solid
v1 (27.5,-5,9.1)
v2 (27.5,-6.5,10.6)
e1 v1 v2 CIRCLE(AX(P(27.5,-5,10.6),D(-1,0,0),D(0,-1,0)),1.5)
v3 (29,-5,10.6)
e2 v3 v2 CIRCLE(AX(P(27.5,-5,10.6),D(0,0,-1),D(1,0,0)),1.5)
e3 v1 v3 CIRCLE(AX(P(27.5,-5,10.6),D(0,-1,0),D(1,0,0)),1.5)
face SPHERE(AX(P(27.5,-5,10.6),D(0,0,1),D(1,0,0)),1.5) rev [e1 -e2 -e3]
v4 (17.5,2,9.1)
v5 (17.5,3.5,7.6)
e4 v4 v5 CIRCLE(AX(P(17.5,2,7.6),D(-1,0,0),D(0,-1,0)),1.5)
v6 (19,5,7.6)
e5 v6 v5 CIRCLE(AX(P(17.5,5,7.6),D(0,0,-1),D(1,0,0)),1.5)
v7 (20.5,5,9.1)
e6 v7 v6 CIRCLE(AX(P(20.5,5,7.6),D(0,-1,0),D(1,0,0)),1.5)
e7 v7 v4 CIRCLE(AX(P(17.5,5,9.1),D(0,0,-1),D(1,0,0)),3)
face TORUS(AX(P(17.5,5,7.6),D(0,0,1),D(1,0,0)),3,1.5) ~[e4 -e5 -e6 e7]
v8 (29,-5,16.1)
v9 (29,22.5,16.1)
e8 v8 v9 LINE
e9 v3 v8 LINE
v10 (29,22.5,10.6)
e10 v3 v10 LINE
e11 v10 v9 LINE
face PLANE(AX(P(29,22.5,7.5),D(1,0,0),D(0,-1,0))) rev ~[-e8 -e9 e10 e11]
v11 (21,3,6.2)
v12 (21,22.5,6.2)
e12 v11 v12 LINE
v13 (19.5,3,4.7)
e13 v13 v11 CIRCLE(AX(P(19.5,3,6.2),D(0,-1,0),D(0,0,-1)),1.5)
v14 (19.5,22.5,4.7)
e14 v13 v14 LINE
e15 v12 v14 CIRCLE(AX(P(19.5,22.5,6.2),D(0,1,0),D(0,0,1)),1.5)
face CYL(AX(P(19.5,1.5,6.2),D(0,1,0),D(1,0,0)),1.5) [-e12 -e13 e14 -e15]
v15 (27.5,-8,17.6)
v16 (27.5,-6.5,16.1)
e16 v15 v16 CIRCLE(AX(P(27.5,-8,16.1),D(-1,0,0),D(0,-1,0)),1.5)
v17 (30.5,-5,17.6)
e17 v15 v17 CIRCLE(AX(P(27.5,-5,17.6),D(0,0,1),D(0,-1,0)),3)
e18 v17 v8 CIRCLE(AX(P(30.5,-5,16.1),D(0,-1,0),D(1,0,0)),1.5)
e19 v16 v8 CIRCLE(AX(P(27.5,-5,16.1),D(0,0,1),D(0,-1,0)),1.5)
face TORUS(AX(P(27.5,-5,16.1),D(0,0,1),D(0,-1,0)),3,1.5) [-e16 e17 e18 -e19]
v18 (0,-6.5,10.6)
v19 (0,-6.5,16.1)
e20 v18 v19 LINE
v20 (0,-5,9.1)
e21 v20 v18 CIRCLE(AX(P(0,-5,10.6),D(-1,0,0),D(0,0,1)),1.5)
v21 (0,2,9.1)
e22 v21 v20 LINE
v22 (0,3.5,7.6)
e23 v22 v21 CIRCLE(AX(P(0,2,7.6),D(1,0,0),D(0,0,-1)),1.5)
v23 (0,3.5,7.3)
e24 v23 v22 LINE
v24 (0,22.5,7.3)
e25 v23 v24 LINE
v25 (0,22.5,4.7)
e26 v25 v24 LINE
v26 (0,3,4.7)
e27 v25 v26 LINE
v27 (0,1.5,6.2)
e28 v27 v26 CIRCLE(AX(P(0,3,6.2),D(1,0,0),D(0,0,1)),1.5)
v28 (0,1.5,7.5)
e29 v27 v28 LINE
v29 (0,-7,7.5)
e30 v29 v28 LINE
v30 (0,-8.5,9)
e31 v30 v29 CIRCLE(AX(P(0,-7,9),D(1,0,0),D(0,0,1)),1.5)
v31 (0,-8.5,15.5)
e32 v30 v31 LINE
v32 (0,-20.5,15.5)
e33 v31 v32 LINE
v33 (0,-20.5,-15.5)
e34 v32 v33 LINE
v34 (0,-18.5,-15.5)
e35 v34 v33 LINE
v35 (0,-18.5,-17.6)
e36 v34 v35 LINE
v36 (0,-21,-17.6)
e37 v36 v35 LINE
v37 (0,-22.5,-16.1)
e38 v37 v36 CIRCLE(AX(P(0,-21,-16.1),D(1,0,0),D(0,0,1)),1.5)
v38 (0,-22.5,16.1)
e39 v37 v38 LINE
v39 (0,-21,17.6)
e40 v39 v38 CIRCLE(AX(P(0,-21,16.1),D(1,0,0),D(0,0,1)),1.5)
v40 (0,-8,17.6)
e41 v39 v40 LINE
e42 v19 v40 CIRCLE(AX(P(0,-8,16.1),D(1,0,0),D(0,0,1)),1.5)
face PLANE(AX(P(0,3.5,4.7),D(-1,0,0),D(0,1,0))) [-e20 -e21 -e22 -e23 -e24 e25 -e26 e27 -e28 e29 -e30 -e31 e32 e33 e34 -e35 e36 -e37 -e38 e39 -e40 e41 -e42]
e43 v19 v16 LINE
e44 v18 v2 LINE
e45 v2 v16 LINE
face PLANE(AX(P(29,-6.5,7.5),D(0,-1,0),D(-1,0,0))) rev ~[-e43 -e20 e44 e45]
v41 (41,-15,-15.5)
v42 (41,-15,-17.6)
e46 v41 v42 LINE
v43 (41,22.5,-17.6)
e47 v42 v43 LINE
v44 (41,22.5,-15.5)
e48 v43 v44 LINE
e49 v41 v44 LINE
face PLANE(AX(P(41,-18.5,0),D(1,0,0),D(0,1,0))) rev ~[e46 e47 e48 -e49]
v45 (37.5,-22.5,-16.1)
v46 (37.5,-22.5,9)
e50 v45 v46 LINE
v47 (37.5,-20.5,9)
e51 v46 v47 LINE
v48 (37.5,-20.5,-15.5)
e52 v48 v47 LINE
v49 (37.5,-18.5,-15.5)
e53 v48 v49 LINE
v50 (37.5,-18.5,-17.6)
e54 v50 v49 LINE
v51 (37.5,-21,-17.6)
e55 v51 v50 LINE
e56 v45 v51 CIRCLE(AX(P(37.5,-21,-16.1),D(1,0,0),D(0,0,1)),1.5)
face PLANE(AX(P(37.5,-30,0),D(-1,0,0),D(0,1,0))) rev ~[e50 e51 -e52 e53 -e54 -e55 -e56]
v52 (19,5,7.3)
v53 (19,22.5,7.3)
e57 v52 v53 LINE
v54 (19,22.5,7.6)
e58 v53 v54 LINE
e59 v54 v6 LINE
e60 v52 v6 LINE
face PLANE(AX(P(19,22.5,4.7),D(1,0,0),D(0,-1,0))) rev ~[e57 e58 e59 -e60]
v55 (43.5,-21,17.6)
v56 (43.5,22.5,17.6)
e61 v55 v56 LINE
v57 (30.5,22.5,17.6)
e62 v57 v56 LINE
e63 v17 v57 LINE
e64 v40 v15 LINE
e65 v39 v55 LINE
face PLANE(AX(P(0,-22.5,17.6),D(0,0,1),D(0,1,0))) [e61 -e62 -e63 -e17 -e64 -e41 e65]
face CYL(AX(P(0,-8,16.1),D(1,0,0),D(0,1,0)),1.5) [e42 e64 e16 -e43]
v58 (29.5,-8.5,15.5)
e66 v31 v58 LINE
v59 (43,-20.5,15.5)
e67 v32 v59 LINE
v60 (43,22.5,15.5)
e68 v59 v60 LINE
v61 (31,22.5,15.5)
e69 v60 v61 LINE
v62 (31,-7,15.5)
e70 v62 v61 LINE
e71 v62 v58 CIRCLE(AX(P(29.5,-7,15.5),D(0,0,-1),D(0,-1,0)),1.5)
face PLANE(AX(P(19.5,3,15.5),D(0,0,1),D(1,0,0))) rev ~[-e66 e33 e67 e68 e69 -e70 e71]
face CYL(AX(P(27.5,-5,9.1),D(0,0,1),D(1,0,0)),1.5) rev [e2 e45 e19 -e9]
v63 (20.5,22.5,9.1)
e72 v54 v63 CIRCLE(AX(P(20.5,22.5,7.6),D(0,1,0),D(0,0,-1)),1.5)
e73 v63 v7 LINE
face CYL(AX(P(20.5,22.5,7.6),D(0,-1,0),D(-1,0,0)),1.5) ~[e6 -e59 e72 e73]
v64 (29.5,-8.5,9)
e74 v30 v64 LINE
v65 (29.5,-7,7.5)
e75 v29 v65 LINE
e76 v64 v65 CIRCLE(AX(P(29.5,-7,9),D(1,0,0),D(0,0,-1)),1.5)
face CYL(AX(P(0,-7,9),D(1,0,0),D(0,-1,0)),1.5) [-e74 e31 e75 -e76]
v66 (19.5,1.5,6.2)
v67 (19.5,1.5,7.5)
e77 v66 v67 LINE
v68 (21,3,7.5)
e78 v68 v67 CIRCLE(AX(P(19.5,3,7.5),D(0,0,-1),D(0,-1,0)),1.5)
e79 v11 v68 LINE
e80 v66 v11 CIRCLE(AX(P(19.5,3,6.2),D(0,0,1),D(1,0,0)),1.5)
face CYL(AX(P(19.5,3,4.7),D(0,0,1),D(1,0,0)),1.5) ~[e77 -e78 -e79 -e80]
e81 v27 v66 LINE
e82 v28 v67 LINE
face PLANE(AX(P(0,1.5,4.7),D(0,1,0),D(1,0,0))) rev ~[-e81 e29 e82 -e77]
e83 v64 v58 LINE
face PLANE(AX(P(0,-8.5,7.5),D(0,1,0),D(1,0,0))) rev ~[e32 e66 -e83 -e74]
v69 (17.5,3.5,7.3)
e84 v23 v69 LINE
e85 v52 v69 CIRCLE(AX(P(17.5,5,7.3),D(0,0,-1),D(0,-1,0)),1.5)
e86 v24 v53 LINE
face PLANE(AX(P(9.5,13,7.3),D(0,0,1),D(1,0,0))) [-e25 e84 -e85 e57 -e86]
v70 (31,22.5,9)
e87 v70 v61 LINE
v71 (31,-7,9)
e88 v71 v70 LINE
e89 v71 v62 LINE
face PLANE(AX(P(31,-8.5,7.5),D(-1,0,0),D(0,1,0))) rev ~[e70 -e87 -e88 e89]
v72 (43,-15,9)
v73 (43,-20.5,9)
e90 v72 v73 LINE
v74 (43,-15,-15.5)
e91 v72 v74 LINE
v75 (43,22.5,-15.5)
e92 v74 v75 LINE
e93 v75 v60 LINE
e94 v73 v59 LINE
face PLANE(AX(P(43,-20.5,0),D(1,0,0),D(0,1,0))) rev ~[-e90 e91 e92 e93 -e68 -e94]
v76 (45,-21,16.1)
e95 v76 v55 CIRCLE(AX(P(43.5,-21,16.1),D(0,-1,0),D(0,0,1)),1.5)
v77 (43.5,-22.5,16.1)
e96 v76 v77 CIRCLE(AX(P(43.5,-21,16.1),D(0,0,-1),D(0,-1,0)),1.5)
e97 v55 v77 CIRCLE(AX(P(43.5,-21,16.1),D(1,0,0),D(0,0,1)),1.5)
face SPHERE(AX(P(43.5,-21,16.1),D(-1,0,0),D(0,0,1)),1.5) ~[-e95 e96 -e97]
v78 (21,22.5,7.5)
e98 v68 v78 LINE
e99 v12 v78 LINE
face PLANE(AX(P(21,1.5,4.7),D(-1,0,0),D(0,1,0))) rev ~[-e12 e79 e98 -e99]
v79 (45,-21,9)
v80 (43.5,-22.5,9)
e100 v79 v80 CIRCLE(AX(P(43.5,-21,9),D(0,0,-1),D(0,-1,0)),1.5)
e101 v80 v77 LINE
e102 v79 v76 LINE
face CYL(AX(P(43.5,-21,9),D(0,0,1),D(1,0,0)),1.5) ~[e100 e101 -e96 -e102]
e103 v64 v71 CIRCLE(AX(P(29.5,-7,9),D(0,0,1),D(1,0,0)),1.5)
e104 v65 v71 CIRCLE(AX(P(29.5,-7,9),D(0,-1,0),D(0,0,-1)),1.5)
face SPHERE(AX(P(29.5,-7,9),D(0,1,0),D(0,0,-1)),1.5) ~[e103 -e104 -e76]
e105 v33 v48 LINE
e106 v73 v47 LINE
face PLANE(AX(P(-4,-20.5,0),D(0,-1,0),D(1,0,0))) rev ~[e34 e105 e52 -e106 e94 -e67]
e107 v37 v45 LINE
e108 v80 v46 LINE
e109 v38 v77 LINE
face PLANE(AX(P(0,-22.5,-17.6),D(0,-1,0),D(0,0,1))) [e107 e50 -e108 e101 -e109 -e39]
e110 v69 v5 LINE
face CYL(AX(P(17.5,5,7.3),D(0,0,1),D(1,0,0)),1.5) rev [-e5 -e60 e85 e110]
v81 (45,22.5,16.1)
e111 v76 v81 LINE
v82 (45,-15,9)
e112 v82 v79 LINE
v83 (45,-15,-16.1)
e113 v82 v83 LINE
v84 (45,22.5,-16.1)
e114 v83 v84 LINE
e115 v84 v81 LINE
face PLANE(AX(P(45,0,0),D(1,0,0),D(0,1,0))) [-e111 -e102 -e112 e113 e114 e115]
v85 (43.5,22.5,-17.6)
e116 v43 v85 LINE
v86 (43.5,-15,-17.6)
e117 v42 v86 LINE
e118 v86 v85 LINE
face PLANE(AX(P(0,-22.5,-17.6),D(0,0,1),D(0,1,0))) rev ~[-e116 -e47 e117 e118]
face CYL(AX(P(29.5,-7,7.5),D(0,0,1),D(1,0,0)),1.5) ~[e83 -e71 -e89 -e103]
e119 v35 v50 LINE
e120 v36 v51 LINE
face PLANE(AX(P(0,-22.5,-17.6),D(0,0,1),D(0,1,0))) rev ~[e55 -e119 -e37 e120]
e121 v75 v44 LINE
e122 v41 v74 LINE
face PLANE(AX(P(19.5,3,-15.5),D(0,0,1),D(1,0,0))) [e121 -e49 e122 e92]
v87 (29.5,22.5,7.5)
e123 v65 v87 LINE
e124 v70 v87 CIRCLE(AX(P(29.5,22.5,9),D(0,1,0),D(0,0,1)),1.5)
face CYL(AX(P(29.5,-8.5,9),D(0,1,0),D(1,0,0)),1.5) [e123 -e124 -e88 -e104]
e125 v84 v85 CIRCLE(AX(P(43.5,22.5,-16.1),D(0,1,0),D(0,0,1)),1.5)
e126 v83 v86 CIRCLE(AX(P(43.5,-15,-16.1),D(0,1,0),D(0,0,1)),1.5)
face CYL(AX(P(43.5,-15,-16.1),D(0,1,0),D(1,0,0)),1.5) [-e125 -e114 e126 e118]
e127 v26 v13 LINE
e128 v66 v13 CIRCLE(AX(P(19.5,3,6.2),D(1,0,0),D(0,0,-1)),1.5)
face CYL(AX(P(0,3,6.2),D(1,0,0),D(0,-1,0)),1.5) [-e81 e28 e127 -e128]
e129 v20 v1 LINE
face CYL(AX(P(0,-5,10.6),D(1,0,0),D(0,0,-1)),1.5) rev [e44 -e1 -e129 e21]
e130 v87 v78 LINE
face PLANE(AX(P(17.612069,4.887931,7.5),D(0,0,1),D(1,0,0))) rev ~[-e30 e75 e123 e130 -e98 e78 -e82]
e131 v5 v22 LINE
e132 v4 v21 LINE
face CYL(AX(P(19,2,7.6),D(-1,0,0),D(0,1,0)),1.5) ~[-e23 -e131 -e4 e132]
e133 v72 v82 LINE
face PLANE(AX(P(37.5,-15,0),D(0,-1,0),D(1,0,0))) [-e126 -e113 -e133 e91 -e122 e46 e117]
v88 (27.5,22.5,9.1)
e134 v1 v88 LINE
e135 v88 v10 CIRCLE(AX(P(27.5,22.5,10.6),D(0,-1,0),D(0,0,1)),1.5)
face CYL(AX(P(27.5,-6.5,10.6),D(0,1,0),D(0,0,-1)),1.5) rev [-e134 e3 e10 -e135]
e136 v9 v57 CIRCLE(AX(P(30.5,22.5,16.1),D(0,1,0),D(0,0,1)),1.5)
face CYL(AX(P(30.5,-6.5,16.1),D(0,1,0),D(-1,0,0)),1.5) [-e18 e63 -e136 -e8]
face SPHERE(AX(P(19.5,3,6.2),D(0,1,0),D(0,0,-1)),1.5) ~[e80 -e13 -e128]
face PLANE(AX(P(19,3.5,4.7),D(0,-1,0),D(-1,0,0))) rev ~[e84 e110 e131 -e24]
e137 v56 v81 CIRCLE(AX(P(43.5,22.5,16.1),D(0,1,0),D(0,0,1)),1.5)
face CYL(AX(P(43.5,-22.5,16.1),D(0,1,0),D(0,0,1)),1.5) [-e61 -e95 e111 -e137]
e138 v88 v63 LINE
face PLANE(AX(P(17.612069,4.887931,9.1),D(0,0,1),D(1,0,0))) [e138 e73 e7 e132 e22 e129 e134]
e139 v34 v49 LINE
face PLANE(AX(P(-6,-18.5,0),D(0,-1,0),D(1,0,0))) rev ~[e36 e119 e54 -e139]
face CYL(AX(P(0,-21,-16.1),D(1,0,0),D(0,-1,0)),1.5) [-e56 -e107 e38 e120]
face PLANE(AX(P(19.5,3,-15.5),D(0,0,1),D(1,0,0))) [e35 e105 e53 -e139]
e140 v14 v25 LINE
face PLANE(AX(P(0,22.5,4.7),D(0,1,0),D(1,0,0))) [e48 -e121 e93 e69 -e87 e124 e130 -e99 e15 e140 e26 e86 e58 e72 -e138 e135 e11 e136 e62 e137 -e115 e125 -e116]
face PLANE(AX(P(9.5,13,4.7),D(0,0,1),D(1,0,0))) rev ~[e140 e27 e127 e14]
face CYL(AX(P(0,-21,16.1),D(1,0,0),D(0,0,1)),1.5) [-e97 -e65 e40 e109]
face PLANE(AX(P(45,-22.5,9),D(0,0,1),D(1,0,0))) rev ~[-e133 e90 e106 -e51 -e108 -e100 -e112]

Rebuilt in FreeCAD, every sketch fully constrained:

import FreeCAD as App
import Part
import Sketcher
from FreeCAD import Vector
Q = App.Units.Quantity


def edges_at(feature, points):
    """Names of the edges that pass closest to the given points."""
    edges = feature.Shape.Edges
    near = lambda p: min(range(len(edges)), key=lambda i: edges[i].distToShape(Part.Vertex(*p))[0])
    return sorted({f"Edge{near(p) + 1}" for p in points})


def add_polygon(sketch, points):
    """Adds a closed chain of lines whose ends are joined by coincident constraints."""
    first, n = sketch.GeometryCount, len(points)
    for a, b in zip(points, points[1:] + points[:1]):
        sketch.addGeometry(Part.LineSegment(App.Vector(*a, 0), App.Vector(*b, 0)), False)
    for i in range(n):
        sketch.addConstraint(Sketcher.Constraint("Coincident", first + i, 2, first + (i + 1) % n, 1))

doc = App.newDocument("Part")
body = doc.addObject("PartDesign::Body", "Body")

# Sketch on YZ plane
sketch1 = doc.addObject("Sketcher::SketchObject", "Sketch")
body.addObject(sketch1)
sketch1.AttachmentSupport = (doc.YZ_Plane, [""])
sketch1.MapMode = "FlatFace"
add_polygon(sketch1, [(-22, 18), (-22, -18), (22, -18), (22, 18)])  # lines 0-3
sketch1.addConstraint([
    Sketcher.Constraint("Vertical", 0),
    Sketcher.Constraint("Horizontal", 1),
    Sketcher.Constraint("Vertical", 2),
    Sketcher.Constraint("Horizontal", 3),
    Sketcher.Constraint("Symmetric", 0, 2, 2, 2, -1, 1),
    Sketcher.Constraint("DistanceX", 1, 1, 1, 2, Q("45 mm")),
    Sketcher.Constraint("DistanceY", 0, 2, 0, 1, Q("35.2 mm")),
])
pad1 = doc.addObject("PartDesign::Pad", "Pad")
body.addObject(pad1)
pad1.Profile = sketch1
pad1.Length = 45

# Sketch on XY plane
sketch2 = doc.addObject("Sketcher::SketchObject", "Sketch001")
body.addObject(sketch2)
sketch2.AttachmentSupport = (doc.XY_Plane, [""])
sketch2.MapMode = "FlatFace"
add_polygon(sketch2, [(0, 22), (0, -6), (29, -6), (29, 22)])  # lines 0-3
sketch2.addConstraint([
    Sketcher.Constraint("Vertical", 0),
    Sketcher.Constraint("Horizontal", 1),
    Sketcher.Constraint("Vertical", 2),
    Sketcher.Constraint("Horizontal", 3),
    Sketcher.Constraint("PointOnObject", 0, 2, -2),
    Sketcher.Constraint("Equal", 3, 0),
    Sketcher.Constraint("DistanceX", 1, 1, 1, 2, Q("29 mm")),
    Sketcher.Constraint("DistanceY", 0, 2, -1, 1, Q("6.5 mm")),
])
pocket1 = doc.addObject("PartDesign::Pocket", "Pocket")
body.addObject(pocket1)
pocket1.Profile = sketch2
pocket1.Length = 45
pocket1.Midplane = True

# Sketch on XY plane
sketch3 = doc.addObject("Sketcher::SketchObject", "Sketch002")
body.addObject(sketch3)
sketch3.AttachmentSupport = (doc.XY_Plane, [""])
sketch3.MapMode = "FlatFace"
add_polygon(sketch3, [(-4, 26), (-4, -20), (43, -20), (43, 26)])  # lines 0-3
sketch3.addConstraint([
    Sketcher.Constraint("Vertical", 0),
    Sketcher.Constraint("Horizontal", 1),
    Sketcher.Constraint("Vertical", 2),
    Sketcher.Constraint("Horizontal", 3),
    Sketcher.Constraint("Equal", 3, 0),
    Sketcher.Constraint("DistanceX", 1, 1, 1, 2, Q("47 mm")),
    Sketcher.Constraint("DistanceX", 0, 2, -1, 1, Q("4 mm")),
    Sketcher.Constraint("DistanceY", 0, 2, -1, 1, Q("20.5 mm")),
])
pocket2 = doc.addObject("PartDesign::Pocket", "Pocket001")
body.addObject(pocket2)
pocket2.Profile = sketch3
pocket2.Length = 31
pocket2.Midplane = True

# Sketch on XY plane
sketch4 = doc.addObject("Sketcher::SketchObject", "Sketch003")
body.addObject(sketch4)
sketch4.AttachmentSupport = (doc.XY_Plane, [""])
sketch4.MapMode = "FlatFace"
add_polygon(sketch4, [(-6, 28), (-6, -18), (41, -18), (41, 28)])  # lines 0-3
sketch4.addConstraint([
    Sketcher.Constraint("Vertical", 0),
    Sketcher.Constraint("Horizontal", 1),
    Sketcher.Constraint("Vertical", 2),
    Sketcher.Constraint("Horizontal", 3),
    Sketcher.Constraint("Equal", 3, 0),
    Sketcher.Constraint("DistanceX", 1, 1, 1, 2, Q("47 mm")),
    Sketcher.Constraint("DistanceX", 0, 2, -1, 1, Q("6 mm")),
    Sketcher.Constraint("DistanceY", 0, 2, -1, 1, Q("18.5 mm")),
])
pocket3 = doc.addObject("PartDesign::Pocket", "Pocket002")
body.addObject(pocket3)
pocket3.Profile = sketch4
pocket3.Length = 28

# Sketch on XY plane
sketch5 = doc.addObject("Sketcher::SketchObject", "Sketch004")
body.addObject(sketch5)
sketch5.AttachmentSupport = (doc.XY_Plane, [""])
sketch5.MapMode = "FlatFace"
add_polygon(sketch5, [(38, -15), (38, -30), (52, -30), (52, -15)])  # lines 0-3
sketch5.addConstraint([
    Sketcher.Constraint("Vertical", 0),
    Sketcher.Constraint("Horizontal", 1),
    Sketcher.Constraint("Vertical", 2),
    Sketcher.Constraint("Horizontal", 3),
    Sketcher.Constraint("Equal", 3, 0),
    Sketcher.Constraint("DistanceX", 1, 1, 1, 2, Q("15 mm")),
    Sketcher.Constraint("DistanceY", 0, 2, -1, 1, Q("30 mm")),
    Sketcher.Constraint("DistanceX", -1, 1, 0, 2, Q("37.5 mm")),
])
pocket4 = doc.addObject("PartDesign::Pocket", "Pocket003")
body.addObject(pocket4)
pocket4.Profile = sketch5
pocket4.Type = "TwoLengths"
pocket4.Length = 24.7
pocket4.Length2 = 9

# Sketch on XY plane
sketch6 = doc.addObject("Sketcher::SketchObject", "Sketch005")
body.addObject(sketch6)
sketch6.AttachmentSupport = (doc.XY_Plane, [""])
sketch6.MapMode = "FlatFace"
sketch6.AttachmentOffset = App.Placement(Vector(0, 0, 7.5), App.Rotation())
add_polygon(sketch6, [(31, 22.5), (29, 22.5), (29, -6.5), (0, -6.5), (0, -8.5), (31, -8.5)])  # lines 0-5
sketch6.addConstraint([
    Sketcher.Constraint("Horizontal", 0),
    Sketcher.Constraint("Vertical", 1),
    Sketcher.Constraint("Horizontal", 2),
    Sketcher.Constraint("Vertical", 3),
    Sketcher.Constraint("Horizontal", 4),
    Sketcher.Constraint("Vertical", 5),
    Sketcher.Constraint("PointOnObject", 2, 2, -2),
    Sketcher.Constraint("Equal", 2, 1),
    Sketcher.Constraint("Equal", 0, 3),
    Sketcher.Constraint("DistanceX", 0, 2, 0, 1, Q("2 mm")),
    Sketcher.Constraint("DistanceX", 2, 2, 2, 1, Q("29 mm")),
    Sketcher.Constraint("DistanceY", -1, 1, 0, 2, Q("22.5 mm")),
])
pad2 = doc.addObject("PartDesign::Pad", "Pad001")
body.addObject(pad2)
pad2.Profile = sketch6
pad2.Length = 8

# Sketch on XY plane
sketch7 = doc.addObject("Sketcher::SketchObject", "Sketch006")
body.addObject(sketch7)
sketch7.AttachmentSupport = (doc.XY_Plane, [""])
sketch7.MapMode = "FlatFace"
sketch7.AttachmentOffset = App.Placement(Vector(0, 0, 7.5), App.Rotation())
add_polygon(sketch7, [(29, -6), (29, 22), (19, 22), (19, 4), (0, 4), (0, -6)])  # lines 0-5
sketch7.addConstraint([
    Sketcher.Constraint("Vertical", 0),
    Sketcher.Constraint("Horizontal", 1),
    Sketcher.Constraint("Vertical", 2),
    Sketcher.Constraint("Horizontal", 3),
    Sketcher.Constraint("Vertical", 4),
    Sketcher.Constraint("Horizontal", 5),
    Sketcher.Constraint("PointOnObject", 3, 2, -2),
    Sketcher.Constraint("Equal", 5, 0),
    Sketcher.Constraint("Equal", 3, 2),
    Sketcher.Constraint("DistanceX", 1, 2, 1, 1, Q("10 mm")),
    Sketcher.Constraint("DistanceX", 3, 2, 3, 1, Q("19 mm")),
    Sketcher.Constraint("DistanceY", -1, 1, 0, 2, Q("22.5 mm")),
])
pad3 = doc.addObject("PartDesign::Pad", "Pad002")
body.addObject(pad3)
pad3.Profile = sketch7
pad3.Length = 1.6

# Sketch on XY plane
sketch8 = doc.addObject("Sketcher::SketchObject", "Sketch007")
body.addObject(sketch8)
sketch8.AttachmentSupport = (doc.XY_Plane, [""])
sketch8.MapMode = "FlatFace"
sketch8.AttachmentOffset = App.Placement(Vector(0, 0, 4.7), App.Rotation())
add_polygon(sketch8, [(21, 22.5), (19, 22.5), (19, 3.5), (0, 3.5), (0, 1.5), (21, 1.5)])  # lines 0-5
sketch8.addConstraint([
    Sketcher.Constraint("Horizontal", 0),
    Sketcher.Constraint("Vertical", 1),
    Sketcher.Constraint("Horizontal", 2),
    Sketcher.Constraint("Vertical", 3),
    Sketcher.Constraint("Horizontal", 4),
    Sketcher.Constraint("Vertical", 5),
    Sketcher.Constraint("PointOnObject", 2, 2, -2),
    Sketcher.Constraint("Equal", 2, 1),
    Sketcher.Constraint("Equal", 0, 3),
    Sketcher.Constraint("DistanceX", 0, 2, 0, 1, Q("2 mm")),
    Sketcher.Constraint("DistanceX", 2, 2, 2, 1, Q("19 mm")),
    Sketcher.Constraint("DistanceY", -1, 1, 0, 2, Q("22.5 mm")),
])
pad4 = doc.addObject("PartDesign::Pad", "Pad003")
body.addObject(pad4)
pad4.Profile = sketch8
pad4.Length = 2.8

# Sketch on XY plane
sketch9 = doc.addObject("Sketcher::SketchObject", "Sketch008")
body.addObject(sketch9)
sketch9.AttachmentSupport = (doc.XY_Plane, [""])
sketch9.MapMode = "FlatFace"
sketch9.AttachmentOffset = App.Placement(Vector(0, 0, 4.7), App.Rotation())
add_polygon(sketch9, [(0, 22), (0, 4), (19, 4), (19, 22)])  # lines 0-3
sketch9.addConstraint([
    Sketcher.Constraint("Vertical", 0),
    Sketcher.Constraint("Horizontal", 1),
    Sketcher.Constraint("Vertical", 2),
    Sketcher.Constraint("Horizontal", 3),
    Sketcher.Constraint("PointOnObject", 0, 2, -2),
    Sketcher.Constraint("Equal", 3, 0),
    Sketcher.Constraint("DistanceX", 1, 1, 1, 2, Q("19 mm")),
    Sketcher.Constraint("DistanceY", -1, 1, 0, 2, Q("3.5 mm")),
])
pad5 = doc.addObject("PartDesign::Pad", "Pad004")
body.addObject(pad5)
pad5.Profile = sketch9
pad5.Length = 2.6
doc.recompute()

fillet = doc.addObject("PartDesign::Fillet", "Fillet")
body.addObject(fillet)
fillet.Base = (pad5, edges_at(pad5, [
    (22.5, -22.5, 17.6),
    (45, 0, 17.6),
    (45, 3.75, -17.6),
    (18.75, -22.5, -17.6),
    (14.5, -6.5, 17.6),
    (29, 8, 17.6),
    (29, -6.5, 13.35),
    (45, -22.5, 13.3),
    (29, 8, 9.1),
    (14.5, -6.5, 9.1),
    (19, 13, 9.1),
    (9.5, 3.5, 9.1),
    (19, 3.5, 8.2),
    (31, 7, 7.5),
    (21, 12, 4.7),
    (10.5, 1.5, 4.7),
    (15.5, -8.5, 7.5),
    (21, 1.5, 6.1),
    (31, -8.5, 11.5),
]))
fillet.Radius = 1.5

doc.recompute()
